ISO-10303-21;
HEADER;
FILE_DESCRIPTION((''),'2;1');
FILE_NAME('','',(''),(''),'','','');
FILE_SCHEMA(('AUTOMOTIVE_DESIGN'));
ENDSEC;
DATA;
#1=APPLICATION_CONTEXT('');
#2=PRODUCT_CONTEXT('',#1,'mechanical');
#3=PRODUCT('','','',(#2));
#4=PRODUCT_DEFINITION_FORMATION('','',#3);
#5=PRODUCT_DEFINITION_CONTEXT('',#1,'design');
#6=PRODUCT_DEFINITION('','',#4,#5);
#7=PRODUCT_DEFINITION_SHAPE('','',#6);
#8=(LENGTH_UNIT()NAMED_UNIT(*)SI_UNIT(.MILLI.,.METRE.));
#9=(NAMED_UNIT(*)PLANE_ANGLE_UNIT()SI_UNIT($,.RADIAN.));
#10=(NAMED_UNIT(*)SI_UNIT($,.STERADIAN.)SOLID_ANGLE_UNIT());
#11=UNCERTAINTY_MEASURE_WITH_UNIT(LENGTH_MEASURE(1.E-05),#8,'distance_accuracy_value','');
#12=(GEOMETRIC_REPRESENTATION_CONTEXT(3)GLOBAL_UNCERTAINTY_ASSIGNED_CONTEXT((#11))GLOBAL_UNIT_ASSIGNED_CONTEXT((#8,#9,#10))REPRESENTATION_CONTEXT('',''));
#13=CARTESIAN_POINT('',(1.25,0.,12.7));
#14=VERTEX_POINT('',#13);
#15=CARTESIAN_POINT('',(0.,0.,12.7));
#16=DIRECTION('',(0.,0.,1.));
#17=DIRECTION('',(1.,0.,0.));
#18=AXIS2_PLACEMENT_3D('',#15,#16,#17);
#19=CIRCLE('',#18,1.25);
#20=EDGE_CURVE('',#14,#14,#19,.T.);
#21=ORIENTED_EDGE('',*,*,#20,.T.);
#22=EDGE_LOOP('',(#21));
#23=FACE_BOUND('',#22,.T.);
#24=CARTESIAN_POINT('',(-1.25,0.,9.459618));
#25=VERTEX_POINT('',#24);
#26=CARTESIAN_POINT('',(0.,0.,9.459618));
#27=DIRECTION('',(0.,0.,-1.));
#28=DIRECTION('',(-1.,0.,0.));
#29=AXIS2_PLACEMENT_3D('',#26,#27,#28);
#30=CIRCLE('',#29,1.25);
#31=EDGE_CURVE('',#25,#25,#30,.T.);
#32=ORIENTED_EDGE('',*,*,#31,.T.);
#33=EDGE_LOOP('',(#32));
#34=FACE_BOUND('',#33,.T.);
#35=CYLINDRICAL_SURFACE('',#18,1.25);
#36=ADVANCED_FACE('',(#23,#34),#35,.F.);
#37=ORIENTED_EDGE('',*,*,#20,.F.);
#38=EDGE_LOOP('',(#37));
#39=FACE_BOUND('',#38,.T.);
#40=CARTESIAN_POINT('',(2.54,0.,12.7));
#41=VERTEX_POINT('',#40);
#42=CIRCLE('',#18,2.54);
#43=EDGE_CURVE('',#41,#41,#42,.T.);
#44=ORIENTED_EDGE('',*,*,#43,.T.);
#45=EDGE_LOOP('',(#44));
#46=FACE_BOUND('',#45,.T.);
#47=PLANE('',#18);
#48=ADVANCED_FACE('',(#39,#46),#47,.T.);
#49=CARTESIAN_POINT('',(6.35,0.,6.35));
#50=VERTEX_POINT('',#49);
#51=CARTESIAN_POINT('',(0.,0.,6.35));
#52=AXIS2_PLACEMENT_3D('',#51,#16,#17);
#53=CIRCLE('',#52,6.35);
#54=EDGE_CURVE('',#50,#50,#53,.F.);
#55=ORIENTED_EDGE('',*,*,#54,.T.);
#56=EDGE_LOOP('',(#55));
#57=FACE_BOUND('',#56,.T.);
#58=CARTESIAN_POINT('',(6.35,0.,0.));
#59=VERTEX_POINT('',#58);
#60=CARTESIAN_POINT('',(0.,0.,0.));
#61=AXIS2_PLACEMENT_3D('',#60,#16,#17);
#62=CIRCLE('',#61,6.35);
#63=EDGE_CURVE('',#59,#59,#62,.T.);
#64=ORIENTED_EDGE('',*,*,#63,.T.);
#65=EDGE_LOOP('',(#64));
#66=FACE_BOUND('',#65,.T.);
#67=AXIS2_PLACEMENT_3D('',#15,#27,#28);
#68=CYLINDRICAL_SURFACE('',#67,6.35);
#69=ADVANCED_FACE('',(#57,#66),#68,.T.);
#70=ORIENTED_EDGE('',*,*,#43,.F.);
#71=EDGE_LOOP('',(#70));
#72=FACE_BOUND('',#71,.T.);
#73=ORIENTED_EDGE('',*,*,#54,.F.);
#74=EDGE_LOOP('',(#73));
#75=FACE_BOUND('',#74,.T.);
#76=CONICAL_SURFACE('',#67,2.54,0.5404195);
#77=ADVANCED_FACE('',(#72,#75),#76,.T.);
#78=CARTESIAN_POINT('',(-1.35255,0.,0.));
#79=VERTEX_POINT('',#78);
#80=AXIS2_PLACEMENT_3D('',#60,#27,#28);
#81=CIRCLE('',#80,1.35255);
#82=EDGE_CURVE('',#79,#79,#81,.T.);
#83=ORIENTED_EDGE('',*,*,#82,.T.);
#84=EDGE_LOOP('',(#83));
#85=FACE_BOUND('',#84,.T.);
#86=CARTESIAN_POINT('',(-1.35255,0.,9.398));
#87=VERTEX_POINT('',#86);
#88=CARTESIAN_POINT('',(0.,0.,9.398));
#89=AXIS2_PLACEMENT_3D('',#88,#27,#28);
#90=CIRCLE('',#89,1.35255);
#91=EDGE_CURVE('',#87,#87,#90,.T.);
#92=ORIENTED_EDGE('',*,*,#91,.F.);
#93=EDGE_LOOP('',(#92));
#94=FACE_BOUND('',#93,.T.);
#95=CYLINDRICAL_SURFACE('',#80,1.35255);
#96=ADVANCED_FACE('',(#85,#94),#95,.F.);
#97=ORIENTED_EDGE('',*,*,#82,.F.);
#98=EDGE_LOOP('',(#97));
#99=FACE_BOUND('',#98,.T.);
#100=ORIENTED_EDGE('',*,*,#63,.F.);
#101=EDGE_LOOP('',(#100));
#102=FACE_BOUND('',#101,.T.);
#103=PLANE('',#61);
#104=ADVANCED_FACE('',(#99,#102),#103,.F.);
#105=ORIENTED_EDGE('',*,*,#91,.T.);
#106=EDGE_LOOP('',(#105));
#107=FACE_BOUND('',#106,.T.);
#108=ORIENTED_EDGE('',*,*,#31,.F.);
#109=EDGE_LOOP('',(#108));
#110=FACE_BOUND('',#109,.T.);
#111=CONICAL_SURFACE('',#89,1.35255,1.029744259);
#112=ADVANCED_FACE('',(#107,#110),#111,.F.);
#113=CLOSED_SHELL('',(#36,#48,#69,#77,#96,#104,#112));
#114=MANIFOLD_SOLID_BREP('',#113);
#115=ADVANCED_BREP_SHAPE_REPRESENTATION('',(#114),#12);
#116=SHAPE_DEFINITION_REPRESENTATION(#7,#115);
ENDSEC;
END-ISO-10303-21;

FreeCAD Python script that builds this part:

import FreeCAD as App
import Part
import Sketcher
from FreeCAD import Vector
Q = App.Units.Quantity


def edges_at(feature, points):
    """Names of the edges that pass closest to the given points."""
    edges = feature.Shape.Edges
    near = lambda p: min(range(len(edges)), key=lambda i: edges[i].distToShape(Part.Vertex(*p))[0])
    return sorted({f"Edge{near(p) + 1}" for p in points})

doc = App.newDocument("Part")
body = doc.addObject("PartDesign::Body", "Body")

sketch1 = body.newObject("Sketcher::SketchObject", "Sketch")
sketch1.AttachmentSupport = (doc.getObject("XY_Plane"), [""])
sketch1.MapMode = "FlatFace"
sketch1.addGeometry(Part.Circle(Vector(0, 0, 0), Vector(0, 0, 1), 6), False)
sketch1.addConstraint([
    Sketcher.Constraint("Coincident", 0, 3, -1, 1),
    Sketcher.Constraint("Diameter", 0, Q("0.5 in")),
])
pad1 = body.newObject("PartDesign::Pad", "Pad")
pad1.Profile = sketch1
pad1.Length = Q("0.5 in")

sketch2 = body.newObject("Sketcher::SketchObject", "Sketch001")
sketch2.AttachmentSupport = (doc.getObject("XY_Plane"), [""])
sketch2.MapMode = "FlatFace"
sketch2.AttachmentOffset = App.Placement(Vector(0, 0, 0.5 * 25.4), App.Rotation())
sketch2.addGeometry(Part.Circle(Vector(0, 0, 0), Vector(0, 0, 1), 1.2), False)
sketch2.addConstraint([
    Sketcher.Constraint("Coincident", 0, 3, -1, 1),
    Sketcher.Constraint("Diameter", 0, Q("2.5 mm")),
])
doc.recompute()
hole = body.newObject("PartDesign::Hole", "Hole")
hole.Profile = sketch2
hole.ThreadType = "None"
hole.Diameter = 2.5
hole.DepthType = "ThroughAll"

sketch3 = body.newObject("Sketcher::SketchObject", "Sketch002")
sketch3.AttachmentSupport = (doc.getObject("XY_Plane"), [""])
sketch3.MapMode = "FlatFace"
sketch3.addGeometry(Part.Circle(Vector(0, 0, 0), Vector(0, 0, 1), 1.4), False)
sketch3.addConstraint([
    Sketcher.Constraint("Coincident", 0, 3, -1, 1),
    Sketcher.Constraint("Diameter", 0, Q("0.1065 in")),
])
doc.recompute()
hole2 = body.newObject("PartDesign::Hole", "Hole001")
hole2.Profile = sketch3
hole2.ThreadType = "None"
hole2.Diameter = Q("0.1065 in")
hole2.DepthType = "Dimension"
hole2.Depth = Q("0.37 in")
hole2.DrillPoint = "Angled"
hole2.DrillPointAngle = 118
hole2.Reversed = True
doc.recompute()

chamfer = body.newObject("PartDesign::Chamfer", "Chamfer")
chamfer.Base = (hole2, edges_at(hole2, [(-6.35, 0, 12.7)]))
chamfer.ChamferType = "Two distances"
chamfer.Size = Q("0.25 in")
chamfer.Size2 = Q("0.15 in")

doc.recompute()
